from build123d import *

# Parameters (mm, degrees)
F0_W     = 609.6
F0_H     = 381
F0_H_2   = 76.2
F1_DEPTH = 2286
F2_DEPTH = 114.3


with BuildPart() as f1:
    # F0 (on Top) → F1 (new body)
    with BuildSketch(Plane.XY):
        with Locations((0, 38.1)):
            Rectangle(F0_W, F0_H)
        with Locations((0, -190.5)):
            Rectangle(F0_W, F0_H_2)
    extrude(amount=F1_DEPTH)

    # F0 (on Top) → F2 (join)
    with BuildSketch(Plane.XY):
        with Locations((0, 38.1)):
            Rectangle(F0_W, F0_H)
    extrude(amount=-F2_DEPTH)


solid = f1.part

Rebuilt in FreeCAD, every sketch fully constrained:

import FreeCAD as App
import Part
import Sketcher
from FreeCAD import Vector
Q = App.Units.Quantity

doc = App.newDocument("Part")
body = doc.addObject("PartDesign::Body", "Body")

# Sketch on XY plane
sketch1 = body.newObject("Sketcher::SketchObject", "Sketch")
sketch1.AttachmentSupport = (doc.getObject("XY_Plane"), [""])
sketch1.MapMode = "FlatFace"
sketch1.addGeometry([
    Part.LineSegment(Vector(-305, 229, 0), Vector(-305, -229, 0)),
    Part.LineSegment(Vector(-305, -229, 0), Vector(305, -229, 0)),
    Part.LineSegment(Vector(305, -229, 0), Vector(305, 229, 0)),
    Part.LineSegment(Vector(305, 229, 0), Vector(-305, 229, 0)),
], False)
sketch1.addConstraint([
    Sketcher.Constraint("Coincident", 0, 2, 1, 1),
    Sketcher.Constraint("Coincident", 1, 2, 2, 1),
    Sketcher.Constraint("Coincident", 2, 2, 3, 1),
    Sketcher.Constraint("Coincident", 3, 2, 0, 1),
    Sketcher.Constraint("Vertical", 0),
    Sketcher.Constraint("Horizontal", 1),
    Sketcher.Constraint("Vertical", 2),
    Sketcher.Constraint("Horizontal", 3),
    Sketcher.Constraint("Symmetric", 0, 2, 2, 2, -1, 1),
    Sketcher.Constraint("DistanceX", 1, 1, 1, 2, Q("24 in")),
    Sketcher.Constraint("DistanceY", 0, 2, 0, 1, Q("18 in")),
])
pad1 = body.newObject("PartDesign::Pad", "Pad")
pad1.Profile = sketch1
pad1.Length = Q("90 in")

# Sketch on XY plane
sketch2 = body.newObject("Sketcher::SketchObject", "Sketch001")
sketch2.AttachmentSupport = (doc.getObject("XY_Plane"), [""])
sketch2.MapMode = "FlatFace"
sketch2.addGeometry([
    Part.LineSegment(Vector(-305, 229, 0), Vector(-305, -152, 0)),
    Part.LineSegment(Vector(-305, -152, 0), Vector(305, -152, 0)),
    Part.LineSegment(Vector(305, -152, 0), Vector(305, 229, 0)),
    Part.LineSegment(Vector(305, 229, 0), Vector(-305, 229, 0)),
], False)
sketch2.addConstraint([
    Sketcher.Constraint("Coincident", 0, 2, 1, 1),
    Sketcher.Constraint("Coincident", 1, 2, 2, 1),
    Sketcher.Constraint("Coincident", 2, 2, 3, 1),
    Sketcher.Constraint("Coincident", 3, 2, 0, 1),
    Sketcher.Constraint("Vertical", 0),
    Sketcher.Constraint("Horizontal", 1),
    Sketcher.Constraint("Vertical", 2),
    Sketcher.Constraint("Horizontal", 3),
    Sketcher.Constraint("DistanceX", 1, 1, 1, 2, Q("24 in")),
    Sketcher.Constraint("DistanceY", 0, 2, 0, 1, Q("15 in")),
    Sketcher.Constraint("DistanceX", 0, 2, -1, 1, Q("12 in")),
    Sketcher.Constraint("DistanceY", 0, 2, -1, 1, Q("6 in")),
])
pad2 = body.newObject("PartDesign::Pad", "Pad001")
pad2.Profile = sketch2
pad2.Length = Q("4.5 in")
pad2.Reversed = True

doc.recompute()
